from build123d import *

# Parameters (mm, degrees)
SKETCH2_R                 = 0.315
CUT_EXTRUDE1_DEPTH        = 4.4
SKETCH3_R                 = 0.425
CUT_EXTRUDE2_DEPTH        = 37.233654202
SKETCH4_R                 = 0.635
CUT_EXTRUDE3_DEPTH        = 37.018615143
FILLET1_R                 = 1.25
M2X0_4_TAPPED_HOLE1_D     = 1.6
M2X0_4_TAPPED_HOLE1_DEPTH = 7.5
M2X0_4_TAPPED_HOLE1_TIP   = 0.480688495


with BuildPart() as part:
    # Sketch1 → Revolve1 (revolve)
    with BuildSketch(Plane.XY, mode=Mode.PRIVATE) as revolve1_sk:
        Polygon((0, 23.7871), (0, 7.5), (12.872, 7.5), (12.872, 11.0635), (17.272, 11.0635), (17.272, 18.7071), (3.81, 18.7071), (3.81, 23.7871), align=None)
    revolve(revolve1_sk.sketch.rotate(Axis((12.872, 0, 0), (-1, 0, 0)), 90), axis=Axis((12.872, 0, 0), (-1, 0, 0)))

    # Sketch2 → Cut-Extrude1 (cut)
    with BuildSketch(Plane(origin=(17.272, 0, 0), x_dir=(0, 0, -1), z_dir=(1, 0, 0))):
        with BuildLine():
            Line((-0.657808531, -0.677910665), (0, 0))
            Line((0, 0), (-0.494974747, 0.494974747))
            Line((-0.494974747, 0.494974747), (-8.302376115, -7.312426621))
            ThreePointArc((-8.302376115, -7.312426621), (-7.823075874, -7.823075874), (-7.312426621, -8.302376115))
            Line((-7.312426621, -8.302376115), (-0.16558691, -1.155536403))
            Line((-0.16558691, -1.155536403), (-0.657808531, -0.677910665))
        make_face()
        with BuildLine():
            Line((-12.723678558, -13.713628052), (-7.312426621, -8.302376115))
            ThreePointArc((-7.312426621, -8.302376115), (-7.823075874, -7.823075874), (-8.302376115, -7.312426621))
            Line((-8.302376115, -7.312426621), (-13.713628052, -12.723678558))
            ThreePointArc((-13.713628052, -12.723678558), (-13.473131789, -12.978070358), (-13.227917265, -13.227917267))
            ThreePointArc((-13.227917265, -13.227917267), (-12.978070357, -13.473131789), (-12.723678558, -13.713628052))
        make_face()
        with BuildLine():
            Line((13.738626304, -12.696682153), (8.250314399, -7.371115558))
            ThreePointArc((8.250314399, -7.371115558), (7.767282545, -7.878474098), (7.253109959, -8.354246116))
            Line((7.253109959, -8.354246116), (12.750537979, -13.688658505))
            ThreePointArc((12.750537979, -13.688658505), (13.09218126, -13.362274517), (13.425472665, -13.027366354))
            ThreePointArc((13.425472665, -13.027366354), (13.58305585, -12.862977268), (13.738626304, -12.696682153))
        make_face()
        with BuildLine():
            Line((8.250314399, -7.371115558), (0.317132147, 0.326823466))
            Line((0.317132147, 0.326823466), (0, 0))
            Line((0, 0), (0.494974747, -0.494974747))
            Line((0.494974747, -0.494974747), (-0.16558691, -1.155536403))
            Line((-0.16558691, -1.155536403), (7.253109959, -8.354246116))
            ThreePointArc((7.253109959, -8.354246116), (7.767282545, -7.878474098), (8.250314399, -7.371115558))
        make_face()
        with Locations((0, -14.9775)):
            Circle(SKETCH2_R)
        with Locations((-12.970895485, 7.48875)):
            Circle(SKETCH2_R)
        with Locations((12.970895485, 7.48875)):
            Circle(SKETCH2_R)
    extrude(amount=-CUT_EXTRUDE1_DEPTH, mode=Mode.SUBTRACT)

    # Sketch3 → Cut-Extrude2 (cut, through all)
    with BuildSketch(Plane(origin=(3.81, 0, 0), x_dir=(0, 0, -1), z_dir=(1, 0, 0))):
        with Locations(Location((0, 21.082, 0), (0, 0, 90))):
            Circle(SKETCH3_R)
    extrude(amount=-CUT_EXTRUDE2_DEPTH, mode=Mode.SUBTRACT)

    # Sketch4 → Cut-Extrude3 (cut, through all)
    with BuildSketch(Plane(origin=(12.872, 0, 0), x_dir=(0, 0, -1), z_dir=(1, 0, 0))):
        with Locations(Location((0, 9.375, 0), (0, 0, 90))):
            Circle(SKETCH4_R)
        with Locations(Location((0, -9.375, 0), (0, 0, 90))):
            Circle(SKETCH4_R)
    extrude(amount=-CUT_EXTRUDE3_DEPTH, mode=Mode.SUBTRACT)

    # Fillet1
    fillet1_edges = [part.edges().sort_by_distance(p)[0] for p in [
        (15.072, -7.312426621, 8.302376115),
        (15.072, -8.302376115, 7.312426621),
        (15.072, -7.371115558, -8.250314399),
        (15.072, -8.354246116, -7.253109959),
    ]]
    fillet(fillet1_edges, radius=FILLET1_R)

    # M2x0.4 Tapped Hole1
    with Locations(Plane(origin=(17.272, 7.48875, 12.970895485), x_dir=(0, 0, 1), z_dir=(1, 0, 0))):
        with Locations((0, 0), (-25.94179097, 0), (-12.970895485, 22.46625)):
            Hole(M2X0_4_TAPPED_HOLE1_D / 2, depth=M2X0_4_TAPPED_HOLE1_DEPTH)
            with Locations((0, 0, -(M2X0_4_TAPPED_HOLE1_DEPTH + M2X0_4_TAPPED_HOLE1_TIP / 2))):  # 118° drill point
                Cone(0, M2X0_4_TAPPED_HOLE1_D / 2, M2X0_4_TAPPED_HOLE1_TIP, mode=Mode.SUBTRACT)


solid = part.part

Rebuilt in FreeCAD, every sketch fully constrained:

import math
import FreeCAD as App
import Part
import Sketcher
Q = App.Units.Quantity


def edges_at(feature, points):
    """Names of the edges that pass closest to the given points."""
    edges = feature.Shape.Edges
    near = lambda p: min(range(len(edges)), key=lambda i: edges[i].distToShape(Part.Vertex(*p))[0])
    return sorted({f"Edge{near(p) + 1}" for p in points})

doc = App.newDocument("Part")
params = doc.addObject("Spreadsheet::Sheet", "Params")
for row, (alias, value) in enumerate([
    ("sketch1_height", "0.2 in"),
    ("sketch1_width", "0.53 in"),
    ("sketch1_width2", "0.15 in"),
    ("revolution_angle", "360 deg"),
    ("pocket1_length", "4.4 mm"),
    ("sketch4_diameter", "0.05 in"),
    ("fillet_radius", "1.25 mm"),
    ("hole_diameter", "1.6 mm"),
    ("hole_depth", "7.5 mm"),
], start=1):
    params.set(f"A{row}", alias)
    params.set(f"B{row}", "=" + value)
    params.setAlias(f"B{row}", alias)

body = doc.addObject("PartDesign::Body", "Body")

sketch1 = body.newObject("Sketcher::SketchObject", "Sketch")
sketch1.AttachmentSupport = (doc.getObject("XY_Plane"), [""])
sketch1.MapMode = "FlatFace"
sketch1.addGeometry([
    Part.LineSegment(App.Vector(0, 23.8, 0), App.Vector(0, 7.5, 0)),
    Part.LineSegment(App.Vector(0, 7.5, 0), App.Vector(12.9, 7.5, 0)),
    Part.LineSegment(App.Vector(12.9, 7.5, 0), App.Vector(12.9, 11.1, 0)),
    Part.LineSegment(App.Vector(12.9, 11.1, 0), App.Vector(17.3, 11.1, 0)),
    Part.LineSegment(App.Vector(17.3, 11.1, 0), App.Vector(17.3, 18.7, 0)),
    Part.LineSegment(App.Vector(17.3, 18.7, 0), App.Vector(3.8, 18.7, 0)),
    Part.LineSegment(App.Vector(3.8, 18.7, 0), App.Vector(3.8, 23.8, 0)),
    Part.LineSegment(App.Vector(3.8, 23.8, 0), App.Vector(0, 23.8, 0)),
], False)
sketch1.addConstraint([
    Sketcher.Constraint("Coincident", 0, 2, 1, 1),
    Sketcher.Constraint("Coincident", 1, 2, 2, 1),
    Sketcher.Constraint("Coincident", 2, 2, 3, 1),
    Sketcher.Constraint("Coincident", 3, 2, 4, 1),
    Sketcher.Constraint("Coincident", 4, 2, 5, 1),
    Sketcher.Constraint("Coincident", 5, 2, 6, 1),
    Sketcher.Constraint("Coincident", 6, 2, 7, 1),
    Sketcher.Constraint("Coincident", 7, 2, 0, 1),
    Sketcher.Constraint("Vertical", 0),
    Sketcher.Constraint("Horizontal", 1),
    Sketcher.Constraint("Vertical", 2),
    Sketcher.Constraint("Horizontal", 3),
    Sketcher.Constraint("Vertical", 4),
    Sketcher.Constraint("Horizontal", 5),
    Sketcher.Constraint("Vertical", 6),
    Sketcher.Constraint("Horizontal", 7),
    Sketcher.Constraint("PointOnObject", 0, 2, -2),
    Sketcher.Constraint("DistanceY", 6, 1, 6, 2, Q("0.2 in")),
    Sketcher.Constraint("DistanceX", 5, 2, 5, 1, Q("0.53 in")),
    Sketcher.Constraint("DistanceX", 7, 2, 7, 1, Q("0.15 in")),
    Sketcher.Constraint("DistanceX", 1, 1, 1, 2, 12.872),
    Sketcher.Constraint("DistanceY", 0, 2, 0, 1, 16.2871),
    Sketcher.Constraint("DistanceY", 2, 1, 2, 2, 3.5635),
    Sketcher.Constraint("DistanceY", -1, 1, 4, 2, Q("0.7365 in")),
])
sketch1.setExpression("Constraints[17]", "Params.sketch1_height")
sketch1.setExpression("Constraints[18]", "Params.sketch1_width")
sketch1.setExpression("Constraints[19]", "Params.sketch1_width2")
revolution = body.newObject("PartDesign::Revolution", "Revolution")
revolution.Profile = sketch1
revolution.ReferenceAxis = (sketch1, ["H_Axis"])
revolution.setExpression("Angle", "Params.revolution_angle")

sketch2 = body.newObject("Sketcher::SketchObject", "Sketch001")
sketch2.AttachmentSupport = (doc.getObject("YZ_Plane"), [""])
sketch2.MapMode = "FlatFace"
sketch2.AttachmentOffset = App.Placement(App.Vector(0, 0, 0.68 * 25.4), App.Rotation())
sketch2.addGeometry([
    Part.LineSegment(App.Vector(-0.68, 0.66, 0), App.Vector(0, 0, 0)),
    Part.LineSegment(App.Vector(0, 0, 0), App.Vector(0.49, 0.49, 0)),
    Part.LineSegment(App.Vector(0.49, 0.49, 0), App.Vector(-12.72, 13.71, 0)),
    Part.ArcOfCircle(Part.Circle(App.Vector(0, 0, 0), App.Vector(0, 0, 1), 18.71), math.radians(132.86), math.radians(135)),
    Part.ArcOfCircle(Part.Circle(App.Vector(0, 0, 0), App.Vector(0, 0, 1), 18.71), math.radians(135), math.radians(137.14)),
    Part.LineSegment(App.Vector(-13.71, 12.72, 0), App.Vector(-8.3, 7.31, 0)),
    Part.LineSegment(App.Vector(-8.3, 7.31, 0), App.Vector(-1.16, 0.17, 0)),
    Part.LineSegment(App.Vector(-1.16, 0.17, 0), App.Vector(-0.68, 0.66, 0)),
    Part.LineSegment(App.Vector(-12.7, -13.74, 0), App.Vector(-7.37, -8.25, 0)),
    Part.LineSegment(App.Vector(-7.37, -8.25, 0), App.Vector(0.33, -0.32, 0)),
    Part.LineSegment(App.Vector(0.33, -0.32, 0), App.Vector(0, 0, 0)),
    Part.LineSegment(App.Vector(0, 0, 0), App.Vector(-0.49, -0.49, 0)),
    Part.LineSegment(App.Vector(-0.49, -0.49, 0), App.Vector(-1.16, 0.17, 0)),
    Part.LineSegment(App.Vector(-1.16, 0.17, 0), App.Vector(-8.35, -7.25, 0)),
    Part.LineSegment(App.Vector(-8.35, -7.25, 0), App.Vector(-13.69, -12.75, 0)),
    Part.ArcOfCircle(Part.Circle(App.Vector(0, 0, 0), App.Vector(0, 0, 1), 18.71), math.radians(-137.03), math.radians(-134.14)),
    Part.ArcOfCircle(Part.Circle(App.Vector(0, 0, 0), App.Vector(0, 0, 1), 18.71), math.radians(-134.14), math.radians(-132.74)),
    Part.Circle(App.Vector(-14.98, 0, 0), App.Vector(0, 0, 1), 0.32),
    Part.Circle(App.Vector(7.49, 12.97, 0), App.Vector(0, 0, 1), 0.32),
    Part.Circle(App.Vector(7.49, -12.97, 0), App.Vector(0, 0, 1), 0.32),
], False)
sketch2.addConstraint([
    Sketcher.Constraint("Coincident", 0, 2, 1, 1),
    Sketcher.Constraint("Coincident", 1, 2, 2, 1),
    Sketcher.Constraint("Coincident", 2, 2, 3, 1),
    Sketcher.Constraint("Tangent", 3, 2, 4, 1),
    Sketcher.Constraint("Coincident", 4, 2, 5, 1),
    Sketcher.Constraint("Coincident", 5, 2, 6, 1),
    Sketcher.Constraint("Coincident", 6, 2, 7, 1),
    Sketcher.Constraint("Coincident", 7, 2, 0, 1),
    Sketcher.Constraint("Coincident", 8, 2, 9, 1),
    Sketcher.Constraint("Coincident", 9, 2, 10, 1),
    Sketcher.Constraint("Coincident", 10, 2, 11, 1),
    Sketcher.Constraint("Coincident", 11, 2, 12, 1),
    Sketcher.Constraint("Coincident", 12, 2, 13, 1),
    Sketcher.Constraint("Coincident", 13, 2, 14, 1),
    Sketcher.Constraint("Coincident", 14, 2, 15, 1),
    Sketcher.Constraint("Tangent", 15, 2, 16, 1),
    Sketcher.Constraint("Coincident", 16, 2, 8, 1),
    Sketcher.Constraint("Coincident", 3, 3, -1, 1),
    Sketcher.Constraint("Coincident", 15, 3, -1, 1),
    Sketcher.Constraint("Coincident", 0, 2, -1, 1),
    Sketcher.Constraint("Coincident", 10, 2, -1, 1),
    Sketcher.Constraint("Coincident", 12, 2, 6, 2),
    Sketcher.Constraint("Equal", 4, 15),
    Sketcher.Constraint("Equal", 3, 16),
    Sketcher.Constraint("Equal", 17, 18),
    Sketcher.Constraint("Equal", 18, 19),
    Sketcher.Constraint("Symmetric", 1, 2, 11, 2, -1, 1),
    Sketcher.Constraint("Symmetric", 18, 3, 19, 3, -1),
    Sketcher.Constraint("PointOnObject", 17, 3, -1),
    Sketcher.Constraint("Perpendicular", 1, 2),
    Sketcher.Constraint("Parallel", 2, 5),
    Sketcher.Constraint("Parallel", 5, 6),
    Sketcher.Constraint("Perpendicular", 0, 7),
    Sketcher.Constraint("Parallel", 7, 8),
    Sketcher.Constraint("Parallel", 8, 9),
    Sketcher.Constraint("Perpendicular", 9, 10),
    Sketcher.Constraint("Perpendicular", 11, 12),
    Sketcher.Constraint("Perpendicular", 10, 13),
    Sketcher.Constraint("Parallel", 13, 14),
    Sketcher.Constraint("Angle", 1, Q("45 deg")),
    Sketcher.Constraint("Radius", 3, Q("0.7364998 in")),
    Sketcher.Constraint("Radius", 4, Q("0.7365 in")),
    Sketcher.Constraint("Diameter", 17, 0.63),
    Sketcher.Constraint("DistanceX", 17, 3, 5, 2, Q("0.2628002 in")),
    Sketcher.Constraint("Distance", 1, 0.7),
    Sketcher.Constraint("DistanceX", 17, 3, -1, 1, 14.9775),
    Sketcher.Constraint("DistanceY", 16, 3, 18, 3, 12.970899),
    Sketcher.Constraint("DistanceY", 8, 2, 6, 2, 8.415901),
    Sketcher.Constraint("DistanceX", -1, 1, 18, 3, 7.48875),
    Sketcher.Constraint("DistanceX", 7, 2, -1, 1, 0.677911),
    Sketcher.Constraint("DistanceY", -1, 1, 7, 2, 0.657809),
    Sketcher.Constraint("DistanceY", 13, 2, -1, 1, 7.25311),
    Sketcher.Constraint("DistanceX", 3, 2, 2, 2, 0.504239),
    Sketcher.Constraint("DistanceX", 8, 2, 6, 2, 6.215579),
    Sketcher.Constraint("DistanceX", 15, 2, 8, 2, 5.656251),
])
pocket1 = body.newObject("PartDesign::Pocket", "Pocket")
pocket1.Profile = sketch2
pocket1.setExpression("Length", "Params.pocket1_length")

sketch3 = body.newObject("Sketcher::SketchObject", "Sketch002")
sketch3.AttachmentSupport = (doc.getObject("YZ_Plane"), [""])
sketch3.MapMode = "FlatFace"
sketch3.AttachmentOffset = App.Placement(App.Vector(0, 0, 0.15 * 25.4), App.Rotation())
sketch3.addGeometry(Part.Circle(App.Vector(21.08, 0, 0), App.Vector(0, 0, 1), 0.42), False)
sketch3.addConstraint([
    Sketcher.Constraint("PointOnObject", 0, 3, -1),
    Sketcher.Constraint("Diameter", 0, 0.85),
    Sketcher.Constraint("DistanceX", -1, 1, 0, 3, Q("0.83 in")),
])
pocket2 = body.newObject("PartDesign::Pocket", "Pocket001")
pocket2.Profile = sketch3
pocket2.Type = "ThroughAll"

sketch4 = body.newObject("Sketcher::SketchObject", "Sketch003")
sketch4.AttachmentSupport = (doc.getObject("YZ_Plane"), [""])
sketch4.MapMode = "FlatFace"
sketch4.AttachmentOffset = App.Placement(App.Vector(0, 0, 12.872), App.Rotation())
sketch4.addGeometry([
    Part.Circle(App.Vector(9.4, 0, 0), App.Vector(0, 0, 1), 0.6),
    Part.Circle(App.Vector(-9.4, 0, 0), App.Vector(0, 0, 1), 0.6),
], False)
sketch4.addConstraint([
    Sketcher.Constraint("Equal", 0, 1),
    Sketcher.Constraint("Symmetric", 0, 3, 1, 3, -1, 1),
    Sketcher.Constraint("PointOnObject", 0, 3, -1),
    Sketcher.Constraint("Diameter", 0, Q("0.05 in")),
    Sketcher.Constraint("DistanceX", -1, 1, 0, 3, 9.375),
])
sketch4.setExpression("Constraints[3]", "Params.sketch4_diameter")
pocket3 = body.newObject("PartDesign::Pocket", "Pocket002")
pocket3.Profile = sketch4
pocket3.Type = "ThroughAll"
doc.recompute()

fillet = body.newObject("PartDesign::Fillet", "Fillet")
fillet.Base = (pocket3, edges_at(pocket3, [
    (15.072, -7.312, 8.302),
    (15.072, -8.302, 7.312),
    (15.072, -7.371, -8.25),
    (15.072, -8.354, -7.253),
]))
fillet.setExpression("Radius", "Params.fillet_radius")

sketch5 = body.newObject("Sketcher::SketchObject", "Sketch004")
sketch5.AttachmentSupport = (doc.getObject("YZ_Plane"), [""])
sketch5.MapMode = "FlatFace"
sketch5.AttachmentOffset = App.Placement(App.Vector(0, 0, 0.68 * 25.4), App.Rotation())
sketch5.addGeometry([
    Part.Circle(App.Vector(7.5, 13, 0), App.Vector(0, 0, 1), 0.8),
    Part.Circle(App.Vector(7.5, -13, 0), App.Vector(0, 0, 1), 0.8),
    Part.Circle(App.Vector(-15, 0, 0), App.Vector(0, 0, 1), 0.8),
], False)
sketch5.addConstraint([
    Sketcher.Constraint("Equal", 0, 1),
    Sketcher.Constraint("Equal", 1, 2),
    Sketcher.Constraint("Symmetric", 0, 3, 1, 3, -1),
    Sketcher.Constraint("PointOnObject", 2, 3, -1),
    Sketcher.Constraint("Diameter", 0, 1.6),
    Sketcher.Constraint("DistanceX", 2, 3, -1, 1, 14.9775),
    Sketcher.Constraint("DistanceX", -1, 1, 0, 3, 7.48875),
    Sketcher.Constraint("DistanceY", 1, 3, 0, 3, 25.941791),
])
doc.recompute()
hole = body.newObject("PartDesign::Hole", "Hole")
hole.Profile = sketch5
hole.ThreadType = "None"
hole.setExpression("Diameter", "Params.hole_diameter")
hole.DepthType = "Dimension"
hole.setExpression("Depth", "Params.hole_depth")
hole.DrillPoint = "Angled"
hole.DrillPointAngle = 118

doc.recompute()
